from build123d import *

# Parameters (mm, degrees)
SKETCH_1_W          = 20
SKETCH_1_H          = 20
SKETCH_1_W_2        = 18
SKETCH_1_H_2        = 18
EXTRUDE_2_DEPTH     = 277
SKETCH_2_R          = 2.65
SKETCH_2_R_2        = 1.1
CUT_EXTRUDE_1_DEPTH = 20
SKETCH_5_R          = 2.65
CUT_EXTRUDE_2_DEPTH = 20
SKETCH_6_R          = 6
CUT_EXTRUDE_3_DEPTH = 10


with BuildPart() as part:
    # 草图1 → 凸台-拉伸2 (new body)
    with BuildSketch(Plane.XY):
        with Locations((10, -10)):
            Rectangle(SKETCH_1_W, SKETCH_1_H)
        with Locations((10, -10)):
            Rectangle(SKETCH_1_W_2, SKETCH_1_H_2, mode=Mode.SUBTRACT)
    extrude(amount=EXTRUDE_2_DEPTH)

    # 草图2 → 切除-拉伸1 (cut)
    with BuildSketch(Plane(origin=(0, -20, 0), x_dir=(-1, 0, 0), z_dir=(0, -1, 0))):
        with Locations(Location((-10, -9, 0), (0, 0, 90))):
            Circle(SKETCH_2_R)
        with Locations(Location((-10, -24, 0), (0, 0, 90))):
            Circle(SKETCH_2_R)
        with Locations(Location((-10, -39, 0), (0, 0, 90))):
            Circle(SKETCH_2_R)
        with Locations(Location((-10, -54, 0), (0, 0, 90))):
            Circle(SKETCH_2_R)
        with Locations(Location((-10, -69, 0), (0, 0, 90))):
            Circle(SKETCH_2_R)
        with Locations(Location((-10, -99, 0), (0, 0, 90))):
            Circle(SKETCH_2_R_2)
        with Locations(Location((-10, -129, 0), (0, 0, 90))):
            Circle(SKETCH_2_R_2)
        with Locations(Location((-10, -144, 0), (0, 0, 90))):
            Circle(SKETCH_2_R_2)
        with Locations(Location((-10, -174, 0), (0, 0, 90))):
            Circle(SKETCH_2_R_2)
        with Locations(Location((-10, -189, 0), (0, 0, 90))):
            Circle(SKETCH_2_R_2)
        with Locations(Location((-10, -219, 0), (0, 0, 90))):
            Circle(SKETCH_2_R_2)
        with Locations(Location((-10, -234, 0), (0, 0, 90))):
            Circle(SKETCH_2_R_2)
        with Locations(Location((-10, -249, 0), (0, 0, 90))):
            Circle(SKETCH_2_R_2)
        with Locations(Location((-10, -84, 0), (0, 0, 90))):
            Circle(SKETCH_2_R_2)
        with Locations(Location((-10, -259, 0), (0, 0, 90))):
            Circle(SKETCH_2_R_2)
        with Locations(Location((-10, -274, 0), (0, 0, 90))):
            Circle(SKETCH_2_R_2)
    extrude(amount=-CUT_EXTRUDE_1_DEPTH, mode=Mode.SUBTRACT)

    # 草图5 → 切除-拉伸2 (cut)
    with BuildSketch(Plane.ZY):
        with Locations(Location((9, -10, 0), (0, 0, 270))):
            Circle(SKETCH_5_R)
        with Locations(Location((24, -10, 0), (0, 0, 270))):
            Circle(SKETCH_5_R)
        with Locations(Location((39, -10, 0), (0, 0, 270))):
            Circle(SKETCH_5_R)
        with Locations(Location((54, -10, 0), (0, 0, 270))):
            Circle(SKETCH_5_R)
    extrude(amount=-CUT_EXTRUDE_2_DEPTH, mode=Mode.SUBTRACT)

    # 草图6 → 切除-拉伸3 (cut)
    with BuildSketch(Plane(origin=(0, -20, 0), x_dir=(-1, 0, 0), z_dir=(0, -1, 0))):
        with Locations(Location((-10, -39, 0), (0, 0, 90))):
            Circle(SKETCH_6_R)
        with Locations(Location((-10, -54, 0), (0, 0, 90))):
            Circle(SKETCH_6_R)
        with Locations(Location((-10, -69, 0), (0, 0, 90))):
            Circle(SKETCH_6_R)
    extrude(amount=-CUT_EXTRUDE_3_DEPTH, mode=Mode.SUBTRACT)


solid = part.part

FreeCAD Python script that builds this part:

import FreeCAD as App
import Part
import Sketcher
from FreeCAD import Vector
Q = App.Units.Quantity


def add_polygon(sketch, points):
    """Adds a closed chain of lines whose ends are joined by coincident constraints."""
    first, n = sketch.GeometryCount, len(points)
    for a, b in zip(points, points[1:] + points[:1]):
        sketch.addGeometry(Part.LineSegment(App.Vector(*a, 0), App.Vector(*b, 0)), False)
    for i in range(n):
        sketch.addConstraint(Sketcher.Constraint("Coincident", first + i, 2, first + (i + 1) % n, 1))

doc = App.newDocument("Part")
body = doc.addObject("PartDesign::Body", "Body")

# Sketch on XY plane
sketch1 = doc.addObject("Sketcher::SketchObject", "Sketch")
body.addObject(sketch1)
sketch1.AttachmentSupport = (doc.XY_Plane, [""])
sketch1.MapMode = "FlatFace"
add_polygon(sketch1, [(0, 0), (0, -20), (20, -20), (20, 0)])  # lines 0-3
add_polygon(sketch1, [(19, -19), (1, -19), (1, -1), (19, -1)])  # lines 4-7
sketch1.addConstraint(Sketcher.Constraint("Vertical", 0))
sketch1.addConstraint(Sketcher.Constraint("Horizontal", 1))
sketch1.addConstraint(Sketcher.Constraint("Vertical", 2))
sketch1.addConstraint(Sketcher.Constraint("Horizontal", 3))
sketch1.addConstraint(Sketcher.Constraint("Horizontal", 4))
sketch1.addConstraint(Sketcher.Constraint("Vertical", 5))
sketch1.addConstraint(Sketcher.Constraint("Horizontal", 6))
sketch1.addConstraint(Sketcher.Constraint("Vertical", 7))
sketch1.addConstraint(Sketcher.Constraint("Coincident", 3, 2, -1, 1))
sketch1.addConstraint(Sketcher.Constraint("Equal", 3, 0))
sketch1.addConstraint(Sketcher.Constraint("Equal", 6, 5))
sketch1.addConstraint(Sketcher.Constraint("DistanceX", 1, 1, 1, 2, Q("20 mm")))
sketch1.addConstraint(Sketcher.Constraint("DistanceX", 4, 2, 4, 1, Q("18 mm")))
sketch1.addConstraint(Sketcher.Constraint("DistanceX", -1, 1, 4, 2, Q("1 mm")))
sketch1.addConstraint(Sketcher.Constraint("DistanceY", 4, 2, -1, 1, Q("19 mm")))
pad1 = doc.addObject("PartDesign::Pad", "Pad")
body.addObject(pad1)
pad1.Profile = sketch1
pad1.Length = 277

# Sketch on XZ plane
sketch2 = doc.addObject("Sketcher::SketchObject", "Sketch001")
body.addObject(sketch2)
sketch2.AttachmentSupport = (doc.XZ_Plane, [""])
sketch2.MapMode = "FlatFace"
sketch2.AttachmentOffset = App.Placement(Vector(0, 0, 20), App.Rotation())
sketch2.addGeometry(Part.Circle(Vector(10, 9, 0), Vector(0, 0, 1), 2.6), False)
sketch2.addGeometry(Part.Circle(Vector(10, 24, 0), Vector(0, 0, 1), 2.6), False)
sketch2.addGeometry(Part.Circle(Vector(10, 39, 0), Vector(0, 0, 1), 2.6), False)
sketch2.addGeometry(Part.Circle(Vector(10, 54, 0), Vector(0, 0, 1), 2.6), False)
sketch2.addGeometry(Part.Circle(Vector(10, 69, 0), Vector(0, 0, 1), 2.6), False)
sketch2.addGeometry(Part.Circle(Vector(10, 99, 0), Vector(0, 0, 1), 1.1), False)
sketch2.addGeometry(Part.Circle(Vector(10, 129, 0), Vector(0, 0, 1), 1.1), False)
sketch2.addGeometry(Part.Circle(Vector(10, 144, 0), Vector(0, 0, 1), 1.1), False)
sketch2.addGeometry(Part.Circle(Vector(10, 174, 0), Vector(0, 0, 1), 1.1), False)
sketch2.addGeometry(Part.Circle(Vector(10, 189, 0), Vector(0, 0, 1), 1.1), False)
sketch2.addGeometry(Part.Circle(Vector(10, 219, 0), Vector(0, 0, 1), 1.1), False)
sketch2.addGeometry(Part.Circle(Vector(10, 234, 0), Vector(0, 0, 1), 1.1), False)
sketch2.addGeometry(Part.Circle(Vector(10, 249, 0), Vector(0, 0, 1), 1.1), False)
sketch2.addGeometry(Part.Circle(Vector(10, 84, 0), Vector(0, 0, 1), 1.1), False)
sketch2.addGeometry(Part.Circle(Vector(10, 259, 0), Vector(0, 0, 1), 1.1), False)
sketch2.addGeometry(Part.Circle(Vector(10, 274, 0), Vector(0, 0, 1), 1.1), False)
sketch2.addConstraint(Sketcher.Constraint("Equal", 0, 1))
sketch2.addConstraint(Sketcher.Constraint("Equal", 1, 2))
sketch2.addConstraint(Sketcher.Constraint("Equal", 2, 3))
sketch2.addConstraint(Sketcher.Constraint("Equal", 3, 4))
sketch2.addConstraint(Sketcher.Constraint("Equal", 5, 6))
sketch2.addConstraint(Sketcher.Constraint("Equal", 6, 7))
sketch2.addConstraint(Sketcher.Constraint("Equal", 7, 8))
sketch2.addConstraint(Sketcher.Constraint("Equal", 8, 9))
sketch2.addConstraint(Sketcher.Constraint("Equal", 9, 10))
sketch2.addConstraint(Sketcher.Constraint("Equal", 10, 11))
sketch2.addConstraint(Sketcher.Constraint("Equal", 11, 12))
sketch2.addConstraint(Sketcher.Constraint("Equal", 12, 13))
sketch2.addConstraint(Sketcher.Constraint("Equal", 13, 14))
sketch2.addConstraint(Sketcher.Constraint("Equal", 14, 15))
sketch2.addConstraint(Sketcher.Constraint("Vertical", 0, 3, 1, 3))
sketch2.addConstraint(Sketcher.Constraint("Vertical", 1, 3, 2, 3))
sketch2.addConstraint(Sketcher.Constraint("Vertical", 2, 3, 3, 3))
sketch2.addConstraint(Sketcher.Constraint("Vertical", 3, 3, 4, 3))
sketch2.addConstraint(Sketcher.Constraint("Vertical", 4, 3, 5, 3))
sketch2.addConstraint(Sketcher.Constraint("Vertical", 5, 3, 6, 3))
sketch2.addConstraint(Sketcher.Constraint("Vertical", 6, 3, 7, 3))
sketch2.addConstraint(Sketcher.Constraint("Vertical", 7, 3, 8, 3))
sketch2.addConstraint(Sketcher.Constraint("Vertical", 8, 3, 9, 3))
sketch2.addConstraint(Sketcher.Constraint("Vertical", 9, 3, 10, 3))
sketch2.addConstraint(Sketcher.Constraint("Vertical", 10, 3, 11, 3))
sketch2.addConstraint(Sketcher.Constraint("Vertical", 11, 3, 12, 3))
sketch2.addConstraint(Sketcher.Constraint("Vertical", 12, 3, 13, 3))
sketch2.addConstraint(Sketcher.Constraint("Vertical", 13, 3, 14, 3))
sketch2.addConstraint(Sketcher.Constraint("Vertical", 14, 3, 15, 3))
sketch2.addConstraint(Sketcher.Constraint("Diameter", 0, Q("5.3 mm")))
sketch2.addConstraint(Sketcher.Constraint("Diameter", 5, Q("2.2 mm")))
sketch2.addConstraint(Sketcher.Constraint("DistanceX", -1, 1, 0, 3, Q("10 mm")))
sketch2.addConstraint(Sketcher.Constraint("DistanceY", -1, 1, 0, 3, Q("9 mm")))
sketch2.addConstraint(Sketcher.Constraint("DistanceY", -1, 1, 1, 3, Q("24 mm")))
sketch2.addConstraint(Sketcher.Constraint("DistanceY", -1, 1, 2, 3, Q("39 mm")))
sketch2.addConstraint(Sketcher.Constraint("DistanceY", -1, 1, 3, 3, Q("54 mm")))
sketch2.addConstraint(Sketcher.Constraint("DistanceY", -1, 1, 4, 3, Q("69 mm")))
sketch2.addConstraint(Sketcher.Constraint("DistanceY", -1, 1, 5, 3, Q("99 mm")))
sketch2.addConstraint(Sketcher.Constraint("DistanceY", -1, 1, 6, 3, Q("129 mm")))
sketch2.addConstraint(Sketcher.Constraint("DistanceY", -1, 1, 7, 3, Q("144 mm")))
sketch2.addConstraint(Sketcher.Constraint("DistanceY", -1, 1, 8, 3, Q("174 mm")))
sketch2.addConstraint(Sketcher.Constraint("DistanceY", -1, 1, 9, 3, Q("189 mm")))
sketch2.addConstraint(Sketcher.Constraint("DistanceY", -1, 1, 10, 3, Q("219 mm")))
sketch2.addConstraint(Sketcher.Constraint("DistanceY", -1, 1, 11, 3, Q("234 mm")))
sketch2.addConstraint(Sketcher.Constraint("DistanceY", -1, 1, 12, 3, Q("249 mm")))
sketch2.addConstraint(Sketcher.Constraint("DistanceY", -1, 1, 13, 3, Q("84 mm")))
sketch2.addConstraint(Sketcher.Constraint("DistanceY", -1, 1, 14, 3, Q("259 mm")))
sketch2.addConstraint(Sketcher.Constraint("DistanceY", -1, 1, 15, 3, Q("274 mm")))
pocket1 = doc.addObject("PartDesign::Pocket", "Pocket")
body.addObject(pocket1)
pocket1.Profile = sketch2
pocket1.Length = 20

# Sketch on YZ plane
sketch3 = doc.addObject("Sketcher::SketchObject", "Sketch002")
body.addObject(sketch3)
sketch3.AttachmentSupport = (doc.YZ_Plane, [""])
sketch3.MapMode = "FlatFace"
sketch3.addGeometry(Part.Circle(Vector(-10, 9, 0), Vector(0, 0, 1), 2.6), False)
sketch3.addGeometry(Part.Circle(Vector(-10, 24, 0), Vector(0, 0, 1), 2.6), False)
sketch3.addGeometry(Part.Circle(Vector(-10, 39, 0), Vector(0, 0, 1), 2.6), False)
sketch3.addGeometry(Part.Circle(Vector(-10, 54, 0), Vector(0, 0, 1), 2.6), False)
sketch3.addConstraint(Sketcher.Constraint("Equal", 0, 1))
sketch3.addConstraint(Sketcher.Constraint("Equal", 1, 2))
sketch3.addConstraint(Sketcher.Constraint("Equal", 2, 3))
sketch3.addConstraint(Sketcher.Constraint("Vertical", 0, 3, 1, 3))
sketch3.addConstraint(Sketcher.Constraint("Vertical", 1, 3, 2, 3))
sketch3.addConstraint(Sketcher.Constraint("Vertical", 2, 3, 3, 3))
sketch3.addConstraint(Sketcher.Constraint("Diameter", 0, Q("5.3 mm")))
sketch3.addConstraint(Sketcher.Constraint("DistanceX", 0, 3, -1, 1, Q("10 mm")))
sketch3.addConstraint(Sketcher.Constraint("DistanceY", -1, 1, 0, 3, Q("9 mm")))
sketch3.addConstraint(Sketcher.Constraint("DistanceY", -1, 1, 1, 3, Q("24 mm")))
sketch3.addConstraint(Sketcher.Constraint("DistanceY", -1, 1, 2, 3, Q("39 mm")))
sketch3.addConstraint(Sketcher.Constraint("DistanceY", -1, 1, 3, 3, Q("54 mm")))
pocket2 = doc.addObject("PartDesign::Pocket", "Pocket001")
body.addObject(pocket2)
pocket2.Profile = sketch3
pocket2.Length = 20
pocket2.Reversed = True

# Sketch on XZ plane
sketch4 = doc.addObject("Sketcher::SketchObject", "Sketch003")
body.addObject(sketch4)
sketch4.AttachmentSupport = (doc.XZ_Plane, [""])
sketch4.MapMode = "FlatFace"
sketch4.AttachmentOffset = App.Placement(Vector(0, 0, 20), App.Rotation())
sketch4.addGeometry(Part.Circle(Vector(10, 39, 0), Vector(0, 0, 1), 6), False)
sketch4.addGeometry(Part.Circle(Vector(10, 54, 0), Vector(0, 0, 1), 6), False)
sketch4.addGeometry(Part.Circle(Vector(10, 69, 0), Vector(0, 0, 1), 6), False)
sketch4.addConstraint(Sketcher.Constraint("Equal", 0, 1))
sketch4.addConstraint(Sketcher.Constraint("Equal", 1, 2))
sketch4.addConstraint(Sketcher.Constraint("Vertical", 0, 3, 1, 3))
sketch4.addConstraint(Sketcher.Constraint("Vertical", 1, 3, 2, 3))
sketch4.addConstraint(Sketcher.Constraint("Diameter", 0, Q("12 mm")))
sketch4.addConstraint(Sketcher.Constraint("DistanceX", -1, 1, 0, 3, Q("10 mm")))
sketch4.addConstraint(Sketcher.Constraint("DistanceY", -1, 1, 0, 3, Q("39 mm")))
sketch4.addConstraint(Sketcher.Constraint("DistanceY", -1, 1, 1, 3, Q("54 mm")))
sketch4.addConstraint(Sketcher.Constraint("DistanceY", -1, 1, 2, 3, Q("69 mm")))
pocket3 = doc.addObject("PartDesign::Pocket", "Pocket002")
body.addObject(pocket3)
pocket3.Profile = sketch4
pocket3.Length = 10

doc.recompute()
